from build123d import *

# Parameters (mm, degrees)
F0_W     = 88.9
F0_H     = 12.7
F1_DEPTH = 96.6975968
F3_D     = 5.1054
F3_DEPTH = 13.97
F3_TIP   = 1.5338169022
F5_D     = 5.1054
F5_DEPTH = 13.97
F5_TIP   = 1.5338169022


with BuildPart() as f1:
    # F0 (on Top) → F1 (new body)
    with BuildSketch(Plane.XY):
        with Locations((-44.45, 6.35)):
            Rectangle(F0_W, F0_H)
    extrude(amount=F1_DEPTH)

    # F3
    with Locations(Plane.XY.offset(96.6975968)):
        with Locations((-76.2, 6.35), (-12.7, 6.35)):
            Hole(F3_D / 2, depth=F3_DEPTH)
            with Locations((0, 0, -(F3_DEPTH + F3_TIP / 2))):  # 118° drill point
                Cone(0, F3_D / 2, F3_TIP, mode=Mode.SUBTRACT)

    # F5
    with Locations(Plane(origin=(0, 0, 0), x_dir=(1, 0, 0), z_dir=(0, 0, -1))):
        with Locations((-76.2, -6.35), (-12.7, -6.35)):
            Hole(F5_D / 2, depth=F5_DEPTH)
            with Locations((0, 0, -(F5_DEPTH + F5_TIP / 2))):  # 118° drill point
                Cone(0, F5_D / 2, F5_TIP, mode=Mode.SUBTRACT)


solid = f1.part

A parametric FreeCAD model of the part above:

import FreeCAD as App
import Part
import Sketcher
Q = App.Units.Quantity


def add_polygon(sketch, points):
    """Adds a closed chain of lines whose ends are joined by coincident constraints."""
    first, n = sketch.GeometryCount, len(points)
    for a, b in zip(points, points[1:] + points[:1]):
        sketch.addGeometry(Part.LineSegment(App.Vector(*a, 0), App.Vector(*b, 0)), False)
    for i in range(n):
        sketch.addConstraint(Sketcher.Constraint("Coincident", first + i, 2, first + (i + 1) % n, 1))

doc = App.newDocument("Part")
body = doc.addObject("PartDesign::Body", "Body")

sketch1 = body.newObject("Sketcher::SketchObject", "Sketch")
sketch1.AttachmentSupport = (doc.getObject("XY_Plane"), [""])
sketch1.MapMode = "FlatFace"
add_polygon(sketch1, [(-88.9, 12.7), (-88.9, 0), (0, 0), (0, 12.7)])
sketch1.addConstraint([
    Sketcher.Constraint("Vertical", 0),
    Sketcher.Constraint("Horizontal", 1),
    Sketcher.Constraint("Vertical", 2),
    Sketcher.Constraint("Horizontal", 3),
    Sketcher.Constraint("Coincident", 1, 2, -1, 1),
    Sketcher.Constraint("DistanceX", 1, 1, 1, 2, Q("3.5 in")),
    Sketcher.Constraint("DistanceY", 0, 2, 0, 1, Q("0.5 in")),
])
pad1 = body.newObject("PartDesign::Pad", "Pad")
pad1.Profile = sketch1
pad1.Length = 96.697597

sketch2 = body.newObject("Sketcher::SketchObject", "Sketch001")
sketch2.AttachmentSupport = (doc.getObject("XY_Plane"), [""])
sketch2.MapMode = "FlatFace"
sketch2.AttachmentOffset = App.Placement(App.Vector(0, 0, 96.697597), App.Rotation())
sketch2.addGeometry([
    Part.Circle(App.Vector(-76.2, 6.35, 0), App.Vector(0, 0, 1), 2.5527),
    Part.Circle(App.Vector(-12.7, 6.35, 0), App.Vector(0, 0, 1), 2.5527),
], False)
sketch2.addConstraint([
    Sketcher.Constraint("Equal", 0, 1),
    Sketcher.Constraint("Horizontal", 0, 3, 1, 3),
    Sketcher.Constraint("Diameter", 0, Q("0.201 in")),
    Sketcher.Constraint("DistanceX", 0, 3, -1, 1, Q("3 in")),
    Sketcher.Constraint("DistanceX", 1, 3, -1, 1, Q("0.5 in")),
    Sketcher.Constraint("DistanceY", -1, 1, 0, 3, Q("0.25 in")),
])
doc.recompute()
hole = body.newObject("PartDesign::Hole", "Hole")
hole.Profile = sketch2
hole.ThreadType = "None"
hole.Diameter = Q("0.201 in")
hole.DepthType = "Dimension"
hole.Depth = Q("0.55 in")
hole.DrillPoint = "Angled"
hole.DrillPointAngle = 118

sketch3 = body.newObject("Sketcher::SketchObject", "Sketch002")
sketch3.AttachmentSupport = (doc.getObject("XY_Plane"), [""])
sketch3.MapMode = "FlatFace"
sketch3.addGeometry([
    Part.Circle(App.Vector(-76.2, 6.35, 0), App.Vector(0, 0, 1), 2.5527),
    Part.Circle(App.Vector(-12.7, 6.35, 0), App.Vector(0, 0, 1), 2.5527),
], False)
sketch3.addConstraint([
    Sketcher.Constraint("Equal", 0, 1),
    Sketcher.Constraint("Horizontal", 0, 3, 1, 3),
    Sketcher.Constraint("Diameter", 0, Q("0.201 in")),
    Sketcher.Constraint("DistanceX", 0, 3, -1, 1, Q("3 in")),
    Sketcher.Constraint("DistanceX", 1, 3, -1, 1, Q("0.5 in")),
    Sketcher.Constraint("DistanceY", -1, 1, 0, 3, Q("0.25 in")),
])
doc.recompute()
hole2 = body.newObject("PartDesign::Hole", "Hole001")
hole2.Profile = sketch3
hole2.ThreadType = "None"
hole2.Diameter = Q("0.201 in")
hole2.DepthType = "Dimension"
hole2.Depth = Q("0.55 in")
hole2.DrillPoint = "Angled"
hole2.DrillPointAngle = 118
hole2.Reversed = True

doc.recompute()
